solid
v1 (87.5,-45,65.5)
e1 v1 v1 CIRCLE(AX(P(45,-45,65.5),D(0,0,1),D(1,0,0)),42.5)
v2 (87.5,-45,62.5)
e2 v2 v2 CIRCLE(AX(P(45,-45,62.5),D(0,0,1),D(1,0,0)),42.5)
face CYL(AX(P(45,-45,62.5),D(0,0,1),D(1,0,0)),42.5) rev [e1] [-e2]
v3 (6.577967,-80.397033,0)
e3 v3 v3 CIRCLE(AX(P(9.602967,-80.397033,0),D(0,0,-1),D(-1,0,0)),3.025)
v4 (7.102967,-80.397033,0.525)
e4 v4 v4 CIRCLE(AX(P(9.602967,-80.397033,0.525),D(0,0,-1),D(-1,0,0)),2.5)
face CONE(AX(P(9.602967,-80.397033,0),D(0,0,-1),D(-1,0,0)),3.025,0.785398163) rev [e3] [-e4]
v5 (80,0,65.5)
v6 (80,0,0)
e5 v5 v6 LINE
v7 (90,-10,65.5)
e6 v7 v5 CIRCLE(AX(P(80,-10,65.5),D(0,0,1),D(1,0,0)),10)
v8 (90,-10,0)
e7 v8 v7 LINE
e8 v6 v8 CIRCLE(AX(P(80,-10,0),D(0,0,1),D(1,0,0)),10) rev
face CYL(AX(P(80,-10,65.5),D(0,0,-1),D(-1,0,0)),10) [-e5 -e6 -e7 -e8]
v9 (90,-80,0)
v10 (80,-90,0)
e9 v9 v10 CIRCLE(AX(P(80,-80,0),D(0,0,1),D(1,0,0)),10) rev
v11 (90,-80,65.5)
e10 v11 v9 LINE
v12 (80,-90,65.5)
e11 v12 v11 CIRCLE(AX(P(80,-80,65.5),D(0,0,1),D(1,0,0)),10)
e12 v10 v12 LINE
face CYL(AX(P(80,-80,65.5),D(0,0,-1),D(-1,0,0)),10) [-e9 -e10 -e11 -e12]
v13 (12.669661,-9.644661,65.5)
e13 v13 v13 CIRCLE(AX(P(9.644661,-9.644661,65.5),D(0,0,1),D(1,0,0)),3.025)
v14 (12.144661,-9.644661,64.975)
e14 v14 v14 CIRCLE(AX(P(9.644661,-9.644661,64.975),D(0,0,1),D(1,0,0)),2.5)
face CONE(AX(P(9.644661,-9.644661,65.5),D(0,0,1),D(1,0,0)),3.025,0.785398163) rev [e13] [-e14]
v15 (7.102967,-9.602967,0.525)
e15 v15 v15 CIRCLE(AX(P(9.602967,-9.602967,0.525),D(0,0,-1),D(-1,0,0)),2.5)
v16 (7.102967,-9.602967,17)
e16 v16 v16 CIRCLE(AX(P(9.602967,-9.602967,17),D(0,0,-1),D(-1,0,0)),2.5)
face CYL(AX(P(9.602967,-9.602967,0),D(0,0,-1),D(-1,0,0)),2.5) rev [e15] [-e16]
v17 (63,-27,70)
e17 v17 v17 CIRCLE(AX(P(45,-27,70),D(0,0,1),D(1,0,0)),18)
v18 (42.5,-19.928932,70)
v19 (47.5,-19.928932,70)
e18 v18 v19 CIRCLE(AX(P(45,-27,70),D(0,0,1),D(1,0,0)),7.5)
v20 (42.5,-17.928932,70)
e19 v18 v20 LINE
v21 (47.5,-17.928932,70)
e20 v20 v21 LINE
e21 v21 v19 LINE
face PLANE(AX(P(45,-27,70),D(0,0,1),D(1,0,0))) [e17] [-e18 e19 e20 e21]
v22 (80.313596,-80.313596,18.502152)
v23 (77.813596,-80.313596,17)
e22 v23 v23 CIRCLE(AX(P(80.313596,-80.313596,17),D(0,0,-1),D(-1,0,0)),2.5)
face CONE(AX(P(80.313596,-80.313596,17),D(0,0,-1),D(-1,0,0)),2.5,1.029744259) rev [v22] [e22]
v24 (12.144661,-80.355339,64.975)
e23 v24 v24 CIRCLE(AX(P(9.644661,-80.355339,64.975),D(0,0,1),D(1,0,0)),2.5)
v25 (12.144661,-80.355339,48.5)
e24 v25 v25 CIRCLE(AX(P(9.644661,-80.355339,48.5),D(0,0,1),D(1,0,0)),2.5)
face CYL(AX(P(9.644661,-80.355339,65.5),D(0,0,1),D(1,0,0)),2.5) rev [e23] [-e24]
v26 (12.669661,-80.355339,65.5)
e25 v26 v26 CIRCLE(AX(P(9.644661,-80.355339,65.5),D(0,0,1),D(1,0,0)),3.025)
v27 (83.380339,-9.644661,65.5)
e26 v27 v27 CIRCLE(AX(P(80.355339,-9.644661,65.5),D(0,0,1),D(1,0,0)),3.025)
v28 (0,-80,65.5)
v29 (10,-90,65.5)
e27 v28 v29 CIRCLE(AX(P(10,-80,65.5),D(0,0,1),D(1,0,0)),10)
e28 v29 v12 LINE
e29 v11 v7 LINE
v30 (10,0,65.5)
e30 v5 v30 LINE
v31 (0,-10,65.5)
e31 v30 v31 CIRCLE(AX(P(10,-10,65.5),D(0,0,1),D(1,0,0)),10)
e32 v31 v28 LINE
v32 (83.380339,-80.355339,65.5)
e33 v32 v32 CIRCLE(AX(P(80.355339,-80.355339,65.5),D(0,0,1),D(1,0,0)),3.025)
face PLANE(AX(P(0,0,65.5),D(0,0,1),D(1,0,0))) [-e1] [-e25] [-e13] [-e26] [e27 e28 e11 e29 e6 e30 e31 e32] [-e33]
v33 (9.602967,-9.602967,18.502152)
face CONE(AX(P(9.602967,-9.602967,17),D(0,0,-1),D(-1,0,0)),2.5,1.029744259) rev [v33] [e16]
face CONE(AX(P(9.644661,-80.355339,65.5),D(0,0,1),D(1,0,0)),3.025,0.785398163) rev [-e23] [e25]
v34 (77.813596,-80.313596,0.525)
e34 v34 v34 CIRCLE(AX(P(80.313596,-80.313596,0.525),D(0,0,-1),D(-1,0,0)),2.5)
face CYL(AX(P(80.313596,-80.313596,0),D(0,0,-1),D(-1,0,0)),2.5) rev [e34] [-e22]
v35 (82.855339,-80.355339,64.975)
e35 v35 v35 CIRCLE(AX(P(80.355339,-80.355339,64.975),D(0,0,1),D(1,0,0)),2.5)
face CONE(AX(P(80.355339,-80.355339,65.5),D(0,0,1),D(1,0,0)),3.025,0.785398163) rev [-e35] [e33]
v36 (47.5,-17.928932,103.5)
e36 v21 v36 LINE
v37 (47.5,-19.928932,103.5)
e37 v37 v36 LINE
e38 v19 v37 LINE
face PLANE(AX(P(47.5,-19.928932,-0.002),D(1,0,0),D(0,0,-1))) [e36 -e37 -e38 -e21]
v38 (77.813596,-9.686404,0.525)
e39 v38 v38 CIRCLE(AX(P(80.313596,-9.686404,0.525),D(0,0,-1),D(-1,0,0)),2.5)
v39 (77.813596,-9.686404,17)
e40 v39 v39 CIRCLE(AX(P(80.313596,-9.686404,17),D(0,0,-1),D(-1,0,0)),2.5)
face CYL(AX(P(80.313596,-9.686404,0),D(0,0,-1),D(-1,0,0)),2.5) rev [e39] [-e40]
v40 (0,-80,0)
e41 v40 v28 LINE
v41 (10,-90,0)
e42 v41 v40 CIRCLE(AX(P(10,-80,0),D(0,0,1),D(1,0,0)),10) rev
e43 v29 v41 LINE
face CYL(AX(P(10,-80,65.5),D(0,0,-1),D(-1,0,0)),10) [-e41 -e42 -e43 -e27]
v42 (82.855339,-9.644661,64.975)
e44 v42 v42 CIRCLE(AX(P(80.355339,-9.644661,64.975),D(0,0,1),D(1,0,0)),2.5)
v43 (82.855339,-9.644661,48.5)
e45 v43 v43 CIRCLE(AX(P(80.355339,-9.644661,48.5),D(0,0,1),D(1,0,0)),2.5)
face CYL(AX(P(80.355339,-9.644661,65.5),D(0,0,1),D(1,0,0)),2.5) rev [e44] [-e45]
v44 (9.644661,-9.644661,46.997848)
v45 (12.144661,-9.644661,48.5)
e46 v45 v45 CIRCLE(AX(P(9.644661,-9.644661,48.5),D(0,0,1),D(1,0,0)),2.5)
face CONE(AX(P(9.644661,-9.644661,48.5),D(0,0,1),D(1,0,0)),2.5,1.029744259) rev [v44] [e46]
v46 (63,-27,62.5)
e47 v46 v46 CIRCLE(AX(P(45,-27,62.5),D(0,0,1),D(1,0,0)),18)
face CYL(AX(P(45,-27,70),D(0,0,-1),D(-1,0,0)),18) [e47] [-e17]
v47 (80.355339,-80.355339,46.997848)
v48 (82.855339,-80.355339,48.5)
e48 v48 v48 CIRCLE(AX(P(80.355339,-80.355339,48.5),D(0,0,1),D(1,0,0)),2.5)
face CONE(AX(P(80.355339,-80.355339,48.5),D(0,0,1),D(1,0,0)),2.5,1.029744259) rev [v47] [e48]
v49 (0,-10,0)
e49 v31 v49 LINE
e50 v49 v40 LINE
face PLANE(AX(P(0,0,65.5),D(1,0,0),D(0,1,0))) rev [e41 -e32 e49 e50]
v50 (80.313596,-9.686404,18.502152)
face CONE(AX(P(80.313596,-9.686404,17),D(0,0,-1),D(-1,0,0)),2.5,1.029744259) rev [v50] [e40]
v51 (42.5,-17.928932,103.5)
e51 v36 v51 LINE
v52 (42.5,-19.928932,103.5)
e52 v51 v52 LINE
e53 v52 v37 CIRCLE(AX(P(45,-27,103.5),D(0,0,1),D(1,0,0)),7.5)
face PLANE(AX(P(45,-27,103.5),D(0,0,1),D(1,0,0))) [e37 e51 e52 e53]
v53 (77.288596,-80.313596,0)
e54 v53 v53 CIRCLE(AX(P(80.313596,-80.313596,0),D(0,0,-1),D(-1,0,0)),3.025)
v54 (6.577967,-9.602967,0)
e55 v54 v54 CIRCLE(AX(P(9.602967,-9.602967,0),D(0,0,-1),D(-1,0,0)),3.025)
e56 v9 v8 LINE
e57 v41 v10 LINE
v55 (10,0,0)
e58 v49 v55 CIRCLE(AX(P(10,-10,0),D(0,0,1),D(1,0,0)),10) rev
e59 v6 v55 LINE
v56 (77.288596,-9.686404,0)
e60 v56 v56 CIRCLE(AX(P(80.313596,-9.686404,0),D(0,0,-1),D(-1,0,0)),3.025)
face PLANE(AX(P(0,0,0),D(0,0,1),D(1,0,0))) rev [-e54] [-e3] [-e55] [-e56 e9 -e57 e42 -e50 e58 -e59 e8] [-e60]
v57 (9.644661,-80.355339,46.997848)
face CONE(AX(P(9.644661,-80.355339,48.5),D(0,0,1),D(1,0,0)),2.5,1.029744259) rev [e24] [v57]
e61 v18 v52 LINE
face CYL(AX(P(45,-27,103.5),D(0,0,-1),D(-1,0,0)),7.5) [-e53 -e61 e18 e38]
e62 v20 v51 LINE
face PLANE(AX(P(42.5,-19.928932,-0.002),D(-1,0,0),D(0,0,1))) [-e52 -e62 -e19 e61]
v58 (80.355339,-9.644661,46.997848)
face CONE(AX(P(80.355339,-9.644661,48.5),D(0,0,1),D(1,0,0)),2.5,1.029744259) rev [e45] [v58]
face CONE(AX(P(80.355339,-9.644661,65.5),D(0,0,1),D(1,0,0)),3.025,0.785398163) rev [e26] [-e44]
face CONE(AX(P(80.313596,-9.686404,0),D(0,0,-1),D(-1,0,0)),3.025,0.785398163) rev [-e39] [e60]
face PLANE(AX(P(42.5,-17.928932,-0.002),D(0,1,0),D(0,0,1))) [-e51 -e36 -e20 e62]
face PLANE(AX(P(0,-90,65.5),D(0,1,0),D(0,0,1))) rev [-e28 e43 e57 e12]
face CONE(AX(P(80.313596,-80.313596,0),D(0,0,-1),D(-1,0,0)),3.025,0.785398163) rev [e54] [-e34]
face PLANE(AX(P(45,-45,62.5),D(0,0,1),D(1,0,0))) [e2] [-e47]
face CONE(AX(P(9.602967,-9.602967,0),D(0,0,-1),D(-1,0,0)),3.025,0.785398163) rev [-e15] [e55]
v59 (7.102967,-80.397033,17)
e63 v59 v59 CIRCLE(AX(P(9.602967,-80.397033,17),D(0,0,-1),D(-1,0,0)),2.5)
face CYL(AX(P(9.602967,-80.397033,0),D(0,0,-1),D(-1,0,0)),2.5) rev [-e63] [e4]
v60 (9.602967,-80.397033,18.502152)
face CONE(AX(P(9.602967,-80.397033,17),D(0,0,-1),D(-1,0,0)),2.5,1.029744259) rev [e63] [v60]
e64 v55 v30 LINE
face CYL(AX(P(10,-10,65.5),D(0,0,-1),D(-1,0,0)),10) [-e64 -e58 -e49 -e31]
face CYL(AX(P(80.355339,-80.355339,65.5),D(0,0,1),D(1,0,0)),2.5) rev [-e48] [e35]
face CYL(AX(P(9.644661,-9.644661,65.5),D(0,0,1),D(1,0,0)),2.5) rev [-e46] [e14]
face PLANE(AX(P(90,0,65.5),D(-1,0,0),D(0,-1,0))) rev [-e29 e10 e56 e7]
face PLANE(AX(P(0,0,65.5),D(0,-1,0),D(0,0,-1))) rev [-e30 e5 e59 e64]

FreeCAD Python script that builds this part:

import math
import FreeCAD as App
import Part
import Sketcher


def edges_at(feature, points):
    """Names of the edges that pass closest to the given points."""
    edges = feature.Shape.Edges
    near = lambda p: min(range(len(edges)), key=lambda i: edges[i].distToShape(Part.Vertex(*p))[0])
    return sorted({f"Edge{near(p) + 1}" for p in points})


def add_polygon(sketch, points):
    """Adds a closed chain of lines whose ends are joined by coincident constraints."""
    first, n = sketch.GeometryCount, len(points)
    for a, b in zip(points, points[1:] + points[:1]):
        sketch.addGeometry(Part.LineSegment(App.Vector(*a, 0), App.Vector(*b, 0)), False)
    for i in range(n):
        sketch.addConstraint(Sketcher.Constraint("Coincident", first + i, 2, first + (i + 1) % n, 1))

doc = App.newDocument("Part")
body = doc.addObject("PartDesign::Body", "Body")

sketch1 = body.newObject("Sketcher::SketchObject", "Sketch")
sketch1.AttachmentSupport = (doc.getObject("XY_Plane"), [""])
sketch1.MapMode = "FlatFace"
add_polygon(sketch1, [(0, 0), (0, -90), (90, -90), (90, 0)])
sketch1.addConstraint([
    Sketcher.Constraint("Vertical", 0),
    Sketcher.Constraint("Horizontal", 1),
    Sketcher.Constraint("Vertical", 2),
    Sketcher.Constraint("Horizontal", 3),
    Sketcher.Constraint("Coincident", 3, 2, -1, 1),
    Sketcher.Constraint("Equal", 3, 0),
    Sketcher.Constraint("DistanceX", 1, 1, 1, 2, 90.0),
])
pad1 = body.newObject("PartDesign::Pad", "Pad")
pad1.Profile = sketch1
pad1.Length = 65.5

sketch2 = body.newObject("Sketcher::SketchObject", "Sketch001")
sketch2.AttachmentSupport = (doc.getObject("XY_Plane"), [""])
sketch2.MapMode = "FlatFace"
sketch2.AttachmentOffset = App.Placement(App.Vector(0, 0, 65.5), App.Rotation())
sketch2.addGeometry(Part.Circle(App.Vector(45, -45, 0), App.Vector(0, 0, 1), 42), False)
sketch2.addConstraint([
    Sketcher.Constraint("Diameter", 0, 85.0),
    Sketcher.Constraint("DistanceX", -1, 1, 0, 3, 45.0),
    Sketcher.Constraint("DistanceY", 0, 3, -1, 1, 45.0),
])
pocket1 = body.newObject("PartDesign::Pocket", "Pocket")
pocket1.Profile = sketch2
pocket1.Length = 3

sketch3 = body.newObject("Sketcher::SketchObject", "Sketch002")
sketch3.AttachmentSupport = (doc.getObject("XY_Plane"), [""])
sketch3.MapMode = "FlatFace"
sketch3.AttachmentOffset = App.Placement(App.Vector(0, 0, 62.5), App.Rotation())
sketch3.addGeometry(Part.Circle(App.Vector(45, -27, 0), App.Vector(0, 0, 1), 18), False)
sketch3.addConstraint([
    Sketcher.Constraint("Diameter", 0, 36.0),
    Sketcher.Constraint("DistanceX", -1, 1, 0, 3, 45.0),
    Sketcher.Constraint("DistanceY", 0, 3, -1, 1, 27.0),
])
pad2 = body.newObject("PartDesign::Pad", "Pad001")
pad2.Profile = sketch3
pad2.Length = 7.5

sketch4 = body.newObject("Sketcher::SketchObject", "Sketch003")
sketch4.AttachmentSupport = (doc.getObject("XY_Plane"), [""])
sketch4.MapMode = "FlatFace"
sketch4.AttachmentOffset = App.Placement(App.Vector(0, 0, 70), App.Rotation())
sketch4.addGeometry(Part.Circle(App.Vector(45, -27, 0), App.Vector(0, 0, 1), 8), False)
sketch4.addConstraint([
    Sketcher.Constraint("Diameter", 0, 15.0),
    Sketcher.Constraint("DistanceX", -1, 1, 0, 3, 45.0),
    Sketcher.Constraint("DistanceY", 0, 3, -1, 1, 27.0),
])
pad3 = body.newObject("PartDesign::Pad", "Pad002")
pad3.Profile = sketch4
pad3.Length = 33.5

sketch5 = body.newObject("Sketcher::SketchObject", "Sketch004")
sketch5.AttachmentSupport = (doc.getObject("XY_Plane"), [""])
sketch5.MapMode = "FlatFace"
sketch5.AttachmentOffset = App.Placement(App.Vector(0, 0, 103.5), App.Rotation())
sketch5.addGeometry([
    Part.LineSegment(App.Vector(42.5, -17.9, 0), App.Vector(42.5, -19.9, 0)),
    Part.ArcOfCircle(Part.Circle(App.Vector(45, -27, 0), App.Vector(0, 0, 1), 7.5), math.radians(71), math.radians(109)),
    Part.LineSegment(App.Vector(47.5, -19.9, 0), App.Vector(47.5, -17.9, 0)),
    Part.LineSegment(App.Vector(47.5, -17.9, 0), App.Vector(42.5, -17.9, 0)),
], False)
sketch5.addConstraint([
    Sketcher.Constraint("Coincident", 0, 2, 1, 2),
    Sketcher.Constraint("Coincident", 1, 1, 2, 1),
    Sketcher.Constraint("Coincident", 2, 2, 3, 1),
    Sketcher.Constraint("Coincident", 3, 2, 0, 1),
    Sketcher.Constraint("Vertical", 0),
    Sketcher.Constraint("Vertical", 2),
    Sketcher.Constraint("Horizontal", 3),
    Sketcher.Constraint("Horizontal", 0, 2, 1, 1),
    Sketcher.Constraint("Radius", 1, 7.5),
    Sketcher.Constraint("DistanceX", 3, 2, 3, 1, 5.0),
    Sketcher.Constraint("DistanceY", 0, 2, 0, 1, 2.0),
    Sketcher.Constraint("DistanceX", -1, 1, 1, 3, 45.0),
    Sketcher.Constraint("DistanceY", 1, 3, -1, 1, 27.0),
])
pad4 = body.newObject("PartDesign::Pad", "Pad003")
pad4.Profile = sketch5
pad4.Type = "UpToFirst"
pad4.Reversed = True

sketch6 = body.newObject("Sketcher::SketchObject", "Sketch005")
sketch6.AttachmentSupport = (doc.getObject("XY_Plane"), [""])
sketch6.MapMode = "FlatFace"
sketch6.AttachmentOffset = App.Placement(App.Vector(0, 0, 65.5), App.Rotation())
sketch6.addGeometry([
    Part.Circle(App.Vector(9.6, -9.6, 0), App.Vector(0, 0, 1), 2.5),
    Part.Circle(App.Vector(80.4, -9.6, 0), App.Vector(0, 0, 1), 2.5),
    Part.Circle(App.Vector(9.6, -80.4, 0), App.Vector(0, 0, 1), 2.5),
    Part.Circle(App.Vector(80.4, -80.4, 0), App.Vector(0, 0, 1), 2.5),
], False)
sketch6.addConstraint([
    Sketcher.Constraint("Equal", 0, 1),
    Sketcher.Constraint("Equal", 1, 2),
    Sketcher.Constraint("Equal", 2, 3),
    Sketcher.Constraint("Horizontal", 0, 3, 1, 3),
    Sketcher.Constraint("Horizontal", 2, 3, 3, 3),
    Sketcher.Constraint("Vertical", 0, 3, 2, 3),
    Sketcher.Constraint("Vertical", 1, 3, 3, 3),
    Sketcher.Constraint("Diameter", 0, 5.0),
    Sketcher.Constraint("DistanceX", -1, 1, 0, 3, 9.644661),
    Sketcher.Constraint("DistanceY", 0, 3, -1, 1, 9.644661),
    Sketcher.Constraint("DistanceX", -1, 1, 1, 3, 80.355339),
    Sketcher.Constraint("DistanceY", 2, 3, -1, 1, 80.355339),
])
doc.recompute()
hole = body.newObject("PartDesign::Hole", "Hole")
hole.Profile = sketch6
hole.ThreadType = "None"
hole.Diameter = 5
hole.DepthType = "Dimension"
hole.Depth = 17
hole.DrillPoint = "Angled"
hole.DrillPointAngle = 118
hole.HoleCutType = "Countersink"
hole.HoleCutDiameter = 6.05
hole.HoleCutCountersinkAngle = 90
doc.recompute()

fillet = body.newObject("PartDesign::Fillet", "Fillet")
fillet.Base = (hole, edges_at(hole, [
    (0, 0, 32.75),
    (90, 0, 32.75),
    (90, -90, 32.75),
    (0, -90, 32.75),
]))
fillet.Radius = 10

sketch7 = body.newObject("Sketcher::SketchObject", "Sketch006")
sketch7.AttachmentSupport = (doc.getObject("XY_Plane"), [""])
sketch7.MapMode = "FlatFace"
sketch7.addGeometry([
    Part.Circle(App.Vector(9.6, -80.4, 0), App.Vector(0, 0, 1), 2.5),
    Part.Circle(App.Vector(80.3, -9.7, 0), App.Vector(0, 0, 1), 2.5),
    Part.Circle(App.Vector(9.6, -9.6, 0), App.Vector(0, 0, 1), 2.5),
    Part.Circle(App.Vector(80.3, -80.3, 0), App.Vector(0, 0, 1), 2.5),
], False)
sketch7.addConstraint([
    Sketcher.Constraint("Equal", 0, 1),
    Sketcher.Constraint("Equal", 1, 2),
    Sketcher.Constraint("Equal", 2, 3),
    Sketcher.Constraint("Vertical", 0, 3, 2, 3),
    Sketcher.Constraint("Vertical", 1, 3, 3, 3),
    Sketcher.Constraint("Diameter", 0, 5.0),
    Sketcher.Constraint("DistanceX", 0, 3, 1, 3, 70.710629),
    Sketcher.Constraint("DistanceY", 0, 3, 1, 3, 70.710629),
    Sketcher.Constraint("DistanceY", 3, 3, 2, 3, 70.710629),
    Sketcher.Constraint("DistanceX", -1, 1, 0, 3, 9.602967),
    Sketcher.Constraint("DistanceY", 0, 3, -1, 1, 80.397033),
    Sketcher.Constraint("DistanceY", 2, 3, -1, 1, 9.602967),
])
doc.recompute()
hole2 = body.newObject("PartDesign::Hole", "Hole001")
hole2.Profile = sketch7
hole2.ThreadType = "None"
hole2.Diameter = 5
hole2.DepthType = "Dimension"
hole2.Depth = 17
hole2.DrillPoint = "Angled"
hole2.DrillPointAngle = 118
hole2.HoleCutType = "Countersink"
hole2.HoleCutDiameter = 6.05
hole2.HoleCutCountersinkAngle = 90
hole2.Reversed = True

doc.recompute()
